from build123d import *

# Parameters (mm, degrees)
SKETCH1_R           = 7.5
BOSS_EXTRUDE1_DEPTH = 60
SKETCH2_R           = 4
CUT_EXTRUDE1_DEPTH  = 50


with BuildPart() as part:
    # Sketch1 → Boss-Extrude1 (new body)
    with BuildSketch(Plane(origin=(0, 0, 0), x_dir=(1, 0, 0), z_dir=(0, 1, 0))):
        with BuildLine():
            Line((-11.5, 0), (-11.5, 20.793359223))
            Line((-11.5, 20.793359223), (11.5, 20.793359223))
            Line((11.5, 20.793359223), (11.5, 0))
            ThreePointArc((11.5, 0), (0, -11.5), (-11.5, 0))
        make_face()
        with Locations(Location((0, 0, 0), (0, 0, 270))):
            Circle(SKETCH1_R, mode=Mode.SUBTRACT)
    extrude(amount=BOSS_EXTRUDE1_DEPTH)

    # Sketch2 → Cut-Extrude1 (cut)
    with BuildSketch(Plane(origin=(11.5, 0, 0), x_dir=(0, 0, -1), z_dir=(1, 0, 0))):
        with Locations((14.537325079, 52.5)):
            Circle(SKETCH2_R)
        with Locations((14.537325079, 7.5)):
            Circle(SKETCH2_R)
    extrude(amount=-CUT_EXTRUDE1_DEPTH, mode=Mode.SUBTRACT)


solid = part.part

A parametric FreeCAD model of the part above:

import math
import FreeCAD as App
import Part
import Sketcher

V = App.Vector
Q = App.Units.Quantity

doc = App.newDocument("Part")
params = doc.addObject("Spreadsheet::Sheet", "Params")
for row, (alias, value) in enumerate([
    ("sketch1_diameter", "15 mm"),
    ("sketch1_radius", "11.5 mm"),
    ("pad1_length", "60 mm"),
    ("sketch2_diameter", "8 mm"),
    ("pocket1_length", "50 mm"),
], start=1):
    params.set(f"A{row}", alias)
    params.set(f"B{row}", "=" + value)
    params.setAlias(f"B{row}", alias)

body = doc.addObject("PartDesign::Body", "Body")

# Sketch on XZ plane
sketch1 = body.newObject("Sketcher::SketchObject", "Sketch")
sketch1.AttachmentSupport = (doc.getObject("XZ_Plane"), [""])
sketch1.MapMode = "FlatFace"
sketch1.addGeometry([
    Part.LineSegment(V(-12, -21, 0), V(-12, 0, 0)),  # 0
    Part.ArcOfCircle(Part.Circle(V(0, 0, 0), V(0, 0, 1), 12), math.radians(0), math.radians(180)),  # 1
    Part.LineSegment(V(12, 0, 0), V(12, -21, 0)),  # 2
    Part.LineSegment(V(12, -21, 0), V(-12, -21, 0)),  # 3
    Part.Circle(V(0, 0, 0), V(0, 0, 1), 8),  # 4
], False)
sketch1.addConstraint([
    Sketcher.Constraint("Tangent", 0, 2, 1, 2),
    Sketcher.Constraint("Tangent", 1, 1, 2, 1),
    Sketcher.Constraint("Coincident", 2, 2, 3, 1),
    Sketcher.Constraint("Coincident", 3, 2, 0, 1),
    Sketcher.Constraint("Vertical", 0),
    Sketcher.Constraint("Vertical", 2),
    Sketcher.Constraint("Horizontal", 3),
    Sketcher.Constraint("Coincident", 1, 3, -1, 1),
    Sketcher.Constraint("Coincident", 4, 3, -1, 1),
    Sketcher.Constraint("Diameter", 4, Q("15 mm")),
    Sketcher.Constraint("Radius", 1, Q("11.5 mm")),
    Sketcher.Constraint("DistanceY", 0, 1, 0, 2, Q("20.793359 mm")),
])
sketch1.setExpression("Constraints[9]", "Params.sketch1_diameter")
sketch1.setExpression("Constraints[10]", "Params.sketch1_radius")
pad1 = body.newObject("PartDesign::Pad", "Pad")
pad1.Profile = sketch1
pad1.setExpression("Length", "Params.pad1_length")
pad1.Reversed = True

# Sketch on YZ plane
sketch2 = body.newObject("Sketcher::SketchObject", "Sketch001")
sketch2.AttachmentSupport = (doc.getObject("YZ_Plane"), [""])
sketch2.MapMode = "FlatFace"
sketch2.AttachmentOffset = App.Placement(V(0, 0, 11.5), App.Rotation())
sketch2.addGeometry([
    Part.Circle(V(52.5, -14.5, 0), V(0, 0, 1), 4),
    Part.Circle(V(7.5, -14.5, 0), V(0, 0, 1), 4),
], False)
sketch2.addConstraint([
    Sketcher.Constraint("Equal", 0, 1),
    Sketcher.Constraint("Horizontal", 0, 3, 1, 3),
    Sketcher.Constraint("Diameter", 0, Q("8 mm")),
    Sketcher.Constraint("DistanceX", 1, 3, 0, 3, Q("45 mm")),
    Sketcher.Constraint("DistanceX", -1, 1, 0, 3, Q("52.5 mm")),
    Sketcher.Constraint("DistanceY", 0, 3, -1, 1, Q("14.537325 mm")),
])
sketch2.setExpression("Constraints[2]", "Params.sketch2_diameter")
pocket1 = body.newObject("PartDesign::Pocket", "Pocket")
pocket1.Profile = sketch2
pocket1.setExpression("Length", "Params.pocket1_length")

doc.recompute()
